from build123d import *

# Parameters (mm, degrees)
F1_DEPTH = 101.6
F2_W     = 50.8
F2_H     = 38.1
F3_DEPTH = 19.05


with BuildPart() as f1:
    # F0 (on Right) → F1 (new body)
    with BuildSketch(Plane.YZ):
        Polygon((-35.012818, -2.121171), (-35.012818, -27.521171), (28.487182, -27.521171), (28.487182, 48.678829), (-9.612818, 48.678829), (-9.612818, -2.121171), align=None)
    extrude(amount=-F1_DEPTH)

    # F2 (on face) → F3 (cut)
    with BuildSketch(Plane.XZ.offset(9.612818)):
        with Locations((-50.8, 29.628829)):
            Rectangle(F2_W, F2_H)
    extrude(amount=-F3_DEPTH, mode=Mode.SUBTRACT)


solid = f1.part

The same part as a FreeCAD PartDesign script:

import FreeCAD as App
import Part
import Sketcher
from FreeCAD import Vector
Q = App.Units.Quantity

doc = App.newDocument("Part")
body = doc.addObject("PartDesign::Body", "Body")

sketch1 = body.newObject("Sketcher::SketchObject", "Sketch")
sketch1.AttachmentSupport = (doc.getObject("YZ_Plane"), [""])
sketch1.MapMode = "FlatFace"
sketch1.addGeometry([
    Part.LineSegment(Vector(-35, -2, 0), Vector(-35, -28, 0)),
    Part.LineSegment(Vector(-35, -28, 0), Vector(28, -28, 0)),
    Part.LineSegment(Vector(28, -28, 0), Vector(28, 49, 0)),
    Part.LineSegment(Vector(28, 49, 0), Vector(-10, 49, 0)),
    Part.LineSegment(Vector(-10, 49, 0), Vector(-10, -2, 0)),
    Part.LineSegment(Vector(-10, -2, 0), Vector(-35, -2, 0)),
], False)
sketch1.addConstraint([
    Sketcher.Constraint("Coincident", 0, 2, 1, 1),
    Sketcher.Constraint("Coincident", 1, 2, 2, 1),
    Sketcher.Constraint("Coincident", 2, 2, 3, 1),
    Sketcher.Constraint("Coincident", 3, 2, 4, 1),
    Sketcher.Constraint("Coincident", 4, 2, 5, 1),
    Sketcher.Constraint("Coincident", 5, 2, 0, 1),
    Sketcher.Constraint("Vertical", 0),
    Sketcher.Constraint("Horizontal", 1),
    Sketcher.Constraint("Vertical", 2),
    Sketcher.Constraint("Horizontal", 3),
    Sketcher.Constraint("Vertical", 4),
    Sketcher.Constraint("Horizontal", 5),
    Sketcher.Constraint("Equal", 5, 0),
    Sketcher.Constraint("DistanceX", 5, 2, 5, 1, Q("1 in")),
    Sketcher.Constraint("DistanceY", 2, 1, 2, 2, Q("3 in")),
    Sketcher.Constraint("DistanceX", 1, 1, 1, 2, Q("2.5 in")),
    Sketcher.Constraint("DistanceX", 0, 2, -1, 1, 35.012818),
    Sketcher.Constraint("DistanceY", 0, 2, -1, 1, 27.521171),
])
pad1 = body.newObject("PartDesign::Pad", "Pad")
pad1.Profile = sketch1
pad1.Length = Q("4 in")
pad1.Reversed = True

sketch2 = body.newObject("Sketcher::SketchObject", "Sketch001")
sketch2.AttachmentSupport = (doc.getObject("XZ_Plane"), [""])
sketch2.MapMode = "FlatFace"
sketch2.AttachmentOffset = App.Placement(Vector(0, 0, 9.612818), App.Rotation())
sketch2.addGeometry([
    Part.LineSegment(Vector(-76, 49, 0), Vector(-76, 11, 0)),
    Part.LineSegment(Vector(-76, 11, 0), Vector(-25, 11, 0)),
    Part.LineSegment(Vector(-25, 11, 0), Vector(-25, 49, 0)),
    Part.LineSegment(Vector(-25, 49, 0), Vector(-76, 49, 0)),
], False)
sketch2.addConstraint([
    Sketcher.Constraint("Coincident", 0, 2, 1, 1),
    Sketcher.Constraint("Coincident", 1, 2, 2, 1),
    Sketcher.Constraint("Coincident", 2, 2, 3, 1),
    Sketcher.Constraint("Coincident", 3, 2, 0, 1),
    Sketcher.Constraint("Vertical", 0),
    Sketcher.Constraint("Horizontal", 1),
    Sketcher.Constraint("Vertical", 2),
    Sketcher.Constraint("Horizontal", 3),
    Sketcher.Constraint("DistanceX", 1, 1, 1, 2, Q("2 in")),
    Sketcher.Constraint("DistanceY", 0, 2, 0, 1, Q("1.5 in")),
    Sketcher.Constraint("DistanceX", 0, 2, -1, 1, Q("3 in")),
    Sketcher.Constraint("DistanceY", -1, 1, 0, 2, 10.578829),
])
pocket1 = body.newObject("PartDesign::Pocket", "Pocket")
pocket1.Profile = sketch2
pocket1.Length = Q("0.75 in")

doc.recompute()
